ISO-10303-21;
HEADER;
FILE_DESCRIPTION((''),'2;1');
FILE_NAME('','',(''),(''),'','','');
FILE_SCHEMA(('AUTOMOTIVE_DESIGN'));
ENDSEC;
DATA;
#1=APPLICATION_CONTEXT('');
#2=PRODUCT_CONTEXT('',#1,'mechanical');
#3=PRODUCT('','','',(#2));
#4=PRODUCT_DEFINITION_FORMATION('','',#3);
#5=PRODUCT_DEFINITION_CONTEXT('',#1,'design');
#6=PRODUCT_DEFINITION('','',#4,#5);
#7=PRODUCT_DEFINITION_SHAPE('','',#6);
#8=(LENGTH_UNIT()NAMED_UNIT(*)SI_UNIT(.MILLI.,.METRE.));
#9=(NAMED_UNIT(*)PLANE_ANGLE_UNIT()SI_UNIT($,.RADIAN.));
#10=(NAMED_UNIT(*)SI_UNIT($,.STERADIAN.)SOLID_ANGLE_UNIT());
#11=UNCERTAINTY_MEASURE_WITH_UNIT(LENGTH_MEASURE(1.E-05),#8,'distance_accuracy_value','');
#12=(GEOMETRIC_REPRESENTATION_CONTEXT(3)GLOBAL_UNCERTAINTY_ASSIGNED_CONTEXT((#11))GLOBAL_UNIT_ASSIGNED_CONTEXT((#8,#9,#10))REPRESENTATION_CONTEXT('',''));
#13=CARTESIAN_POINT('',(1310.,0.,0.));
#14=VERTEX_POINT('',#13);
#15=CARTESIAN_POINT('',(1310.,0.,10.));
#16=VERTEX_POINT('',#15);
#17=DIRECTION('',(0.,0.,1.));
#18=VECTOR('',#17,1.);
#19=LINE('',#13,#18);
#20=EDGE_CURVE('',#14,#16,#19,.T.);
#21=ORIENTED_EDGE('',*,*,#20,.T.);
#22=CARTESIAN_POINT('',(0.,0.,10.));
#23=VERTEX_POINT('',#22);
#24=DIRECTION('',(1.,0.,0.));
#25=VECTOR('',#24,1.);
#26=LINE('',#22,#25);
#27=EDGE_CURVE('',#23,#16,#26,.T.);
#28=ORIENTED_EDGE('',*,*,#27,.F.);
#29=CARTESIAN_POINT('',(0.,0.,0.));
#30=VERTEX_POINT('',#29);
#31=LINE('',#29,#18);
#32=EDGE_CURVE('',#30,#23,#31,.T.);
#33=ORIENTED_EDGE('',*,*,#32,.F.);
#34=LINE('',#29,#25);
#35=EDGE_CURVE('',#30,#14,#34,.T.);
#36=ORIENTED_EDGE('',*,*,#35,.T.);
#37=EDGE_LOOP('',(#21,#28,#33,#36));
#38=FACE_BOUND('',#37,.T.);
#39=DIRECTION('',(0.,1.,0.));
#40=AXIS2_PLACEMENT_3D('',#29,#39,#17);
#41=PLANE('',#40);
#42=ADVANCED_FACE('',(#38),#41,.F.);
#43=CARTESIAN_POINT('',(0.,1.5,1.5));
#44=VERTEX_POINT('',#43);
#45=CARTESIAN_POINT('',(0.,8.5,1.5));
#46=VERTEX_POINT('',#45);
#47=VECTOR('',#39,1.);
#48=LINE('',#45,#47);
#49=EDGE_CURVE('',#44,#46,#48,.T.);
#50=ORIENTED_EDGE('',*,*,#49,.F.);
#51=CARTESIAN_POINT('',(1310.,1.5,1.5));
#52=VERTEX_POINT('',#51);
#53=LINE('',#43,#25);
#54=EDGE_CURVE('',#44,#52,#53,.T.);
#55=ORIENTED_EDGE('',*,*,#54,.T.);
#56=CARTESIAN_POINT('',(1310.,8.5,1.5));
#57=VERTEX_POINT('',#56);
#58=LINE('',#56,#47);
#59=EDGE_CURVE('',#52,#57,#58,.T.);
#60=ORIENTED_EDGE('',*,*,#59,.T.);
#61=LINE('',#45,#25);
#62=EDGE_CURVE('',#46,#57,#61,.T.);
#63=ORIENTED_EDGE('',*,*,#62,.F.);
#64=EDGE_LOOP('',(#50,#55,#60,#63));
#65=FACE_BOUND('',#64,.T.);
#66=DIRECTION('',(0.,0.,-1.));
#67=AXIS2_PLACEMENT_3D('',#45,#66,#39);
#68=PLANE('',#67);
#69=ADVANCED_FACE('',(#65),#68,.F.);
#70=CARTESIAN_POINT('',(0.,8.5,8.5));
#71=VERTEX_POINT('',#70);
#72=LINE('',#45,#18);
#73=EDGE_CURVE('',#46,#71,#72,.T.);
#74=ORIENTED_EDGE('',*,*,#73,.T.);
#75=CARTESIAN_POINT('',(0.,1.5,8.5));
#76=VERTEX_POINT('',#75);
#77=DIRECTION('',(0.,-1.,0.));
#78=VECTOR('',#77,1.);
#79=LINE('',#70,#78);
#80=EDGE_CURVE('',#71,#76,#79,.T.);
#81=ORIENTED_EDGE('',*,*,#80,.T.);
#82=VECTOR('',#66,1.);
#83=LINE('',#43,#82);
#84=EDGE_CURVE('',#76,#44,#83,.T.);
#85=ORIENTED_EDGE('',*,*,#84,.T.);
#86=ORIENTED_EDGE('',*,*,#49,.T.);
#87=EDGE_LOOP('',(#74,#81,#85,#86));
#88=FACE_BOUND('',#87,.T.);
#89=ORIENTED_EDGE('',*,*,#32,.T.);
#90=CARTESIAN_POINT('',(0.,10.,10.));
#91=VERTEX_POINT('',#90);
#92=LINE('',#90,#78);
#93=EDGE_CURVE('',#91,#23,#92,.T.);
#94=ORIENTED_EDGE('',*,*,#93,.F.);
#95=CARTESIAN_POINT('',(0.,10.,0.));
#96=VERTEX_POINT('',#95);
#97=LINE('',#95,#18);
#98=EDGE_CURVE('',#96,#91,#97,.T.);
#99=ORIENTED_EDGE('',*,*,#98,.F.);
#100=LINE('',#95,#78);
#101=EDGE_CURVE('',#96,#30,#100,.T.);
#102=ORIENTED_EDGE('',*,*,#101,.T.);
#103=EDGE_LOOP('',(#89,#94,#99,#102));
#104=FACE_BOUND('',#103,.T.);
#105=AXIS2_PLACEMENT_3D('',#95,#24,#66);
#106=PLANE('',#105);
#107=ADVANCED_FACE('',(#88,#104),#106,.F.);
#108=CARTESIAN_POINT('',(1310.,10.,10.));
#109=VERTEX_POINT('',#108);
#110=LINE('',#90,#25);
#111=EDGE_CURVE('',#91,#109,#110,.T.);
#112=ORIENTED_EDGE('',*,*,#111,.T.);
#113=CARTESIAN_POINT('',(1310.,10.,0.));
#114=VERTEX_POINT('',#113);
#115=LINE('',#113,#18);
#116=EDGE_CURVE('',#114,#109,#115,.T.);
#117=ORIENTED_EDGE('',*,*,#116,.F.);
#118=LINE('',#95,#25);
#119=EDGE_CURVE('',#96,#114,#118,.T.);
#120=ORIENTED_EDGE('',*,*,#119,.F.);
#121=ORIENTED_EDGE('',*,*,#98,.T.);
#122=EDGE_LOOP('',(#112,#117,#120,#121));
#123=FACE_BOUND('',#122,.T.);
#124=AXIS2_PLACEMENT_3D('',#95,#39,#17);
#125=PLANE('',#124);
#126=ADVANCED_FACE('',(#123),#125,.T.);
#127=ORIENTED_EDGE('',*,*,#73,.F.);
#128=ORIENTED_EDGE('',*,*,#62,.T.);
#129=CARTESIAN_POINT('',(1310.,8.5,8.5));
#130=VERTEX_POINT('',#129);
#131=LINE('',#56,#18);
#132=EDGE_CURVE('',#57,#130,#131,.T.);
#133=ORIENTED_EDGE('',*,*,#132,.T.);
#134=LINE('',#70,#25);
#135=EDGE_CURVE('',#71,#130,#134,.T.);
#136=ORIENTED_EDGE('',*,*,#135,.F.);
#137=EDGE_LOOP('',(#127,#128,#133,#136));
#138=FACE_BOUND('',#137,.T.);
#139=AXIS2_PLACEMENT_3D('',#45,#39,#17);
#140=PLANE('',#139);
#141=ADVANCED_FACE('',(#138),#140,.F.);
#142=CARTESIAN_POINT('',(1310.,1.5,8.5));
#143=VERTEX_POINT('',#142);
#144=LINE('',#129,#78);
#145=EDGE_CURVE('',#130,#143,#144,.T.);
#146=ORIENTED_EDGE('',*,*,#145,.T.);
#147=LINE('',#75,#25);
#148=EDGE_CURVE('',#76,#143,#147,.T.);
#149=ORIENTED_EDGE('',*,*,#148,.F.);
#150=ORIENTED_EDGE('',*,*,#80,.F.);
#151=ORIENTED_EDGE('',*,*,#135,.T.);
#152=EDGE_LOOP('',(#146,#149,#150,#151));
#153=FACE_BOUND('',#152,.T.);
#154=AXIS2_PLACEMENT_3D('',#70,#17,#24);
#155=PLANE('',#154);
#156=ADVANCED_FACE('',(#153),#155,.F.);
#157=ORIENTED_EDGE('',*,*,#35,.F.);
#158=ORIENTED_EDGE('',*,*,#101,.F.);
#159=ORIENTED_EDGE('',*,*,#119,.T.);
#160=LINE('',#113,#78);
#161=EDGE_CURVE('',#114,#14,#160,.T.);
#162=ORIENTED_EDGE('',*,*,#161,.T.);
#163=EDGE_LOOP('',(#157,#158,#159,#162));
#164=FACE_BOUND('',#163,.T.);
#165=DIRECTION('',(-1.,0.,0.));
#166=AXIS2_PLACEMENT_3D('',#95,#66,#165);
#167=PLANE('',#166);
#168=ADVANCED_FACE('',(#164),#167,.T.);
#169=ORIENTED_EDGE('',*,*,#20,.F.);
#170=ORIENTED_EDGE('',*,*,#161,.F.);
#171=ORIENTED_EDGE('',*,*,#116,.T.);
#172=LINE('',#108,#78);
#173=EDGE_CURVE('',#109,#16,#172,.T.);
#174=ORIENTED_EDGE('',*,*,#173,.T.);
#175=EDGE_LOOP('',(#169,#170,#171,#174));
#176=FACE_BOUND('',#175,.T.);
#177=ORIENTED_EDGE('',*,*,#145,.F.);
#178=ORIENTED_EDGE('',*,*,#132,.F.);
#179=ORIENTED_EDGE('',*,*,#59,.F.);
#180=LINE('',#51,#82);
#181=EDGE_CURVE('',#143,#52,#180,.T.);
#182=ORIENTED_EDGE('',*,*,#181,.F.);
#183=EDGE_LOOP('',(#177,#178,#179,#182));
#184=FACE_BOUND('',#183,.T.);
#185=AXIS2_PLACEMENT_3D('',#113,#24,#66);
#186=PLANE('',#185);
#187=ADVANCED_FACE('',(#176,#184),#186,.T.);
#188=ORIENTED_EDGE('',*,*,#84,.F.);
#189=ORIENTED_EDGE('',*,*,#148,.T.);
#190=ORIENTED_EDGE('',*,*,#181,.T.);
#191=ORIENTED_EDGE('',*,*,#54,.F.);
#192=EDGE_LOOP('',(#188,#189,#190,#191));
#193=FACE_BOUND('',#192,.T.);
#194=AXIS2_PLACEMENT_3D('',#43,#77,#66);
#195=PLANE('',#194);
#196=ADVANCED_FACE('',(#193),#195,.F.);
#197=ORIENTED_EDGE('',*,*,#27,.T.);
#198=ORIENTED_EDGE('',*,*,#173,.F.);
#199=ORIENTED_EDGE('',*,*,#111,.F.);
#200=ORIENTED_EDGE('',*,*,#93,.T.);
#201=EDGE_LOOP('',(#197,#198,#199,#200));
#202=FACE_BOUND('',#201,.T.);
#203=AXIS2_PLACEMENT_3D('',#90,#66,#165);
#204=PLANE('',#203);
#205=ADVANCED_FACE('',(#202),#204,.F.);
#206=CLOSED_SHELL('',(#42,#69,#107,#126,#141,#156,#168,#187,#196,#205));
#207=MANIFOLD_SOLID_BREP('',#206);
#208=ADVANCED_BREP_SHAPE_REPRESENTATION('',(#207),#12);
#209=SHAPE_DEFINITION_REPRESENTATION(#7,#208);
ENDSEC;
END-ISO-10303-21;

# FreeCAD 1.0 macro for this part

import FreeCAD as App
import Part
import Sketcher
from FreeCAD import Vector

doc = App.newDocument("Part")
body = doc.addObject("PartDesign::Body", "Body")

# Sketch on XZ plane
sketch1 = body.newObject("Sketcher::SketchObject", "Sketch")
sketch1.AttachmentSupport = (doc.getObject("XZ_Plane"), [""])
sketch1.MapMode = "FlatFace"
sketch1.addGeometry(Part.LineSegment(Vector(0, 0, 0), Vector(0, 10, 0)), False)
sketch1.addGeometry(Part.LineSegment(Vector(0, 10, 0), Vector(1310, 10, 0)), False)
sketch1.addGeometry(Part.LineSegment(Vector(1310, 10, 0), Vector(1310, 0, 0)), False)
sketch1.addGeometry(Part.LineSegment(Vector(1310, 0, 0), Vector(0, 0, 0)), False)
sketch1.addConstraint(Sketcher.Constraint("Coincident", 0, 2, 1, 1))
sketch1.addConstraint(Sketcher.Constraint("Coincident", 1, 2, 2, 1))
sketch1.addConstraint(Sketcher.Constraint("Coincident", 2, 2, 3, 1))
sketch1.addConstraint(Sketcher.Constraint("Coincident", 3, 2, 0, 1))
sketch1.addConstraint(Sketcher.Constraint("Vertical", 0))
sketch1.addConstraint(Sketcher.Constraint("Horizontal", 1))
sketch1.addConstraint(Sketcher.Constraint("Vertical", 2))
sketch1.addConstraint(Sketcher.Constraint("Horizontal", 3))
sketch1.addConstraint(Sketcher.Constraint("Coincident", 3, 2, -1, 1))
sketch1.addConstraint(Sketcher.Constraint("DistanceX", 1, 1, 1, 2, 1310.0))
sketch1.addConstraint(Sketcher.Constraint("DistanceY", 0, 1, 0, 2, 10.0))
pad1 = body.newObject("PartDesign::Pad", "Pad")
pad1.Profile = sketch1
pad1.Length = 10
pad1.Reversed = True

# Sketch on YZ plane
sketch2 = body.newObject("Sketcher::SketchObject", "Sketch001")
sketch2.AttachmentSupport = (doc.getObject("YZ_Plane"), [""])
sketch2.MapMode = "FlatFace"
sketch2.AttachmentOffset = App.Placement(Vector(0, 0, 1310), App.Rotation())
sketch2.addGeometry(Part.LineSegment(Vector(8, 8, 0), Vector(2, 8, 0)), False)
sketch2.addGeometry(Part.LineSegment(Vector(2, 8, 0), Vector(2, 2, 0)), False)
sketch2.addGeometry(Part.LineSegment(Vector(2, 2, 0), Vector(8, 2, 0)), False)
sketch2.addGeometry(Part.LineSegment(Vector(8, 2, 0), Vector(8, 8, 0)), False)
sketch2.addConstraint(Sketcher.Constraint("Coincident", 0, 2, 1, 1))
sketch2.addConstraint(Sketcher.Constraint("Coincident", 1, 2, 2, 1))
sketch2.addConstraint(Sketcher.Constraint("Coincident", 2, 2, 3, 1))
sketch2.addConstraint(Sketcher.Constraint("Coincident", 3, 2, 0, 1))
sketch2.addConstraint(Sketcher.Constraint("Horizontal", 0))
sketch2.addConstraint(Sketcher.Constraint("Vertical", 1))
sketch2.addConstraint(Sketcher.Constraint("Horizontal", 2))
sketch2.addConstraint(Sketcher.Constraint("Vertical", 3))
sketch2.addConstraint(Sketcher.Constraint("Equal", 2, 1))
sketch2.addConstraint(Sketcher.Constraint("DistanceX", 0, 2, 0, 1, 7.0))
sketch2.addConstraint(Sketcher.Constraint("DistanceX", -1, 1, 0, 2, 1.5))
sketch2.addConstraint(Sketcher.Constraint("DistanceY", -1, 1, 0, 2, 8.5))
pocket1 = body.newObject("PartDesign::Pocket", "Pocket")
pocket1.Profile = sketch2
pocket1.Type = "ThroughAll"

doc.recompute()
